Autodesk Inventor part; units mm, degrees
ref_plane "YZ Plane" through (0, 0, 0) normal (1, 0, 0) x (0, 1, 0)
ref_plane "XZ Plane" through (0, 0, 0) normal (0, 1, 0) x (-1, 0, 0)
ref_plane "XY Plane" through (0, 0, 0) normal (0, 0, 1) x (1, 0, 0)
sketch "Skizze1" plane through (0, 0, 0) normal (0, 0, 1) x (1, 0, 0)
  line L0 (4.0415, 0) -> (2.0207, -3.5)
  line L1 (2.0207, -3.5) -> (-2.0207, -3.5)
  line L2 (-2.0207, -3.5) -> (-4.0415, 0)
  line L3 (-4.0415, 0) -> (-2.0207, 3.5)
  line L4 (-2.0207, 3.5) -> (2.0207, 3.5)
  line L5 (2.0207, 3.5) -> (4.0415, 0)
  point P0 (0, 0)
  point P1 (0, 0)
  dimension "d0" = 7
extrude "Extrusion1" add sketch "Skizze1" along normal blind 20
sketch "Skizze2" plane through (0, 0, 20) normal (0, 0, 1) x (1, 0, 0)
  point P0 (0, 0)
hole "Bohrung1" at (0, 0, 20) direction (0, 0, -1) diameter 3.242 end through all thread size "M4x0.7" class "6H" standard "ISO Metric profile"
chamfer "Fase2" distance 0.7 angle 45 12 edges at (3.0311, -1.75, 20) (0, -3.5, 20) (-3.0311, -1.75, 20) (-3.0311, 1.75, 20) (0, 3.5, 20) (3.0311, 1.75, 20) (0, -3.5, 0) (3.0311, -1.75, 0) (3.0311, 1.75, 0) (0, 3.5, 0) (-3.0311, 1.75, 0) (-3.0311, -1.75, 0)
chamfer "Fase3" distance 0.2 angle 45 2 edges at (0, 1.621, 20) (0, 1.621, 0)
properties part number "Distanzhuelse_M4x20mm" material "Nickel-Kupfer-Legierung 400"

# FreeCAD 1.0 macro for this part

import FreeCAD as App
import Part
import Sketcher
Q = App.Units.Quantity


def edges_at(feature, points):
    """Names of the edges that pass closest to the given points."""
    edges = feature.Shape.Edges
    near = lambda p: min(range(len(edges)), key=lambda i: edges[i].distToShape(Part.Vertex(*p))[0])
    return sorted({f"Edge{near(p) + 1}" for p in points})


def add_polygon(sketch, points):
    """Adds a closed chain of lines whose ends are joined by coincident constraints."""
    first, n = sketch.GeometryCount, len(points)
    for a, b in zip(points, points[1:] + points[:1]):
        sketch.addGeometry(Part.LineSegment(App.Vector(*a, 0), App.Vector(*b, 0)), False)
    for i in range(n):
        sketch.addConstraint(Sketcher.Constraint("Coincident", first + i, 2, first + (i + 1) % n, 1))

doc = App.newDocument("Part")
body = doc.addObject("PartDesign::Body", "Body")

sketch1 = body.newObject("Sketcher::SketchObject", "Sketch")
sketch1.AttachmentSupport = (doc.getObject("XY_Plane"), [""])
sketch1.MapMode = "FlatFace"
add_polygon(sketch1, [(2, -3.5), (4, 0), (2, 3.5), (-2, 3.5), (-4, 0), (-2, -3.5)])
sketch1.addConstraint([
    Sketcher.Constraint("Horizontal", 2),
    Sketcher.Constraint("Horizontal", 5),
    Sketcher.Constraint("Symmetric", 0, 2, 3, 2, -1, 1),
    Sketcher.Constraint("Symmetric", 1, 2, 4, 2, -1, 1),
    Sketcher.Constraint("PointOnObject", 0, 2, -1),
    Sketcher.Constraint("Parallel", 0, 3),
    Sketcher.Constraint("Vertical", 2, 2, 4, 2),
    Sketcher.Constraint("DistanceY", 4, 2, 2, 2, Q("7 mm")),
    Sketcher.Constraint("Angle", 0, Q("59.999 deg")),
    Sketcher.Constraint("DistanceX", 2, 2, 2, 1, Q("4.0414 mm")),
])
pad1 = body.newObject("PartDesign::Pad", "Pad")
pad1.Profile = sketch1
pad1.Length = 20

sketch2 = body.newObject("Sketcher::SketchObject", "Sketch001")
sketch2.AttachmentSupport = (doc.getObject("XY_Plane"), [""])
sketch2.MapMode = "FlatFace"
sketch2.AttachmentOffset = App.Placement(App.Vector(0, 0, 20), App.Rotation())
sketch2.addGeometry(Part.Circle(App.Vector(0, 0, 0), App.Vector(0, 0, 1), 1.6), False)
sketch2.addConstraint([
    Sketcher.Constraint("Coincident", 0, 3, -1, 1),
    Sketcher.Constraint("Diameter", 0, Q("3.242 mm")),
])
doc.recompute()
hole = body.newObject("PartDesign::Hole", "Hole")
hole.Profile = sketch2
hole.ThreadType = "None"
hole.Diameter = 3.242
hole.DepthType = "ThroughAll"
doc.recompute()

chamfer = body.newObject("PartDesign::Chamfer", "Chamfer")
chamfer.Base = (hole, edges_at(hole, [
    (3.031, -1.75, 20),
    (0, -3.5, 20),
    (-3.031, -1.75, 20),
    (-3.031, 1.75, 20),
    (0, 3.5, 20),
    (3.031, 1.75, 20),
    (0, -3.5, 0),
    (3.031, -1.75, 0),
    (3.031, 1.75, 0),
    (0, 3.5, 0),
    (-3.031, 1.75, 0),
    (-3.031, -1.75, 0),
]))
chamfer.Size = 0.7
doc.recompute()

chamfer2 = body.newObject("PartDesign::Chamfer", "Chamfer001")
chamfer2.Base = (chamfer, edges_at(chamfer, [(0, 1.621, 20), (0, 1.621, 0)]))
chamfer2.Size = 0.2

doc.recompute()
